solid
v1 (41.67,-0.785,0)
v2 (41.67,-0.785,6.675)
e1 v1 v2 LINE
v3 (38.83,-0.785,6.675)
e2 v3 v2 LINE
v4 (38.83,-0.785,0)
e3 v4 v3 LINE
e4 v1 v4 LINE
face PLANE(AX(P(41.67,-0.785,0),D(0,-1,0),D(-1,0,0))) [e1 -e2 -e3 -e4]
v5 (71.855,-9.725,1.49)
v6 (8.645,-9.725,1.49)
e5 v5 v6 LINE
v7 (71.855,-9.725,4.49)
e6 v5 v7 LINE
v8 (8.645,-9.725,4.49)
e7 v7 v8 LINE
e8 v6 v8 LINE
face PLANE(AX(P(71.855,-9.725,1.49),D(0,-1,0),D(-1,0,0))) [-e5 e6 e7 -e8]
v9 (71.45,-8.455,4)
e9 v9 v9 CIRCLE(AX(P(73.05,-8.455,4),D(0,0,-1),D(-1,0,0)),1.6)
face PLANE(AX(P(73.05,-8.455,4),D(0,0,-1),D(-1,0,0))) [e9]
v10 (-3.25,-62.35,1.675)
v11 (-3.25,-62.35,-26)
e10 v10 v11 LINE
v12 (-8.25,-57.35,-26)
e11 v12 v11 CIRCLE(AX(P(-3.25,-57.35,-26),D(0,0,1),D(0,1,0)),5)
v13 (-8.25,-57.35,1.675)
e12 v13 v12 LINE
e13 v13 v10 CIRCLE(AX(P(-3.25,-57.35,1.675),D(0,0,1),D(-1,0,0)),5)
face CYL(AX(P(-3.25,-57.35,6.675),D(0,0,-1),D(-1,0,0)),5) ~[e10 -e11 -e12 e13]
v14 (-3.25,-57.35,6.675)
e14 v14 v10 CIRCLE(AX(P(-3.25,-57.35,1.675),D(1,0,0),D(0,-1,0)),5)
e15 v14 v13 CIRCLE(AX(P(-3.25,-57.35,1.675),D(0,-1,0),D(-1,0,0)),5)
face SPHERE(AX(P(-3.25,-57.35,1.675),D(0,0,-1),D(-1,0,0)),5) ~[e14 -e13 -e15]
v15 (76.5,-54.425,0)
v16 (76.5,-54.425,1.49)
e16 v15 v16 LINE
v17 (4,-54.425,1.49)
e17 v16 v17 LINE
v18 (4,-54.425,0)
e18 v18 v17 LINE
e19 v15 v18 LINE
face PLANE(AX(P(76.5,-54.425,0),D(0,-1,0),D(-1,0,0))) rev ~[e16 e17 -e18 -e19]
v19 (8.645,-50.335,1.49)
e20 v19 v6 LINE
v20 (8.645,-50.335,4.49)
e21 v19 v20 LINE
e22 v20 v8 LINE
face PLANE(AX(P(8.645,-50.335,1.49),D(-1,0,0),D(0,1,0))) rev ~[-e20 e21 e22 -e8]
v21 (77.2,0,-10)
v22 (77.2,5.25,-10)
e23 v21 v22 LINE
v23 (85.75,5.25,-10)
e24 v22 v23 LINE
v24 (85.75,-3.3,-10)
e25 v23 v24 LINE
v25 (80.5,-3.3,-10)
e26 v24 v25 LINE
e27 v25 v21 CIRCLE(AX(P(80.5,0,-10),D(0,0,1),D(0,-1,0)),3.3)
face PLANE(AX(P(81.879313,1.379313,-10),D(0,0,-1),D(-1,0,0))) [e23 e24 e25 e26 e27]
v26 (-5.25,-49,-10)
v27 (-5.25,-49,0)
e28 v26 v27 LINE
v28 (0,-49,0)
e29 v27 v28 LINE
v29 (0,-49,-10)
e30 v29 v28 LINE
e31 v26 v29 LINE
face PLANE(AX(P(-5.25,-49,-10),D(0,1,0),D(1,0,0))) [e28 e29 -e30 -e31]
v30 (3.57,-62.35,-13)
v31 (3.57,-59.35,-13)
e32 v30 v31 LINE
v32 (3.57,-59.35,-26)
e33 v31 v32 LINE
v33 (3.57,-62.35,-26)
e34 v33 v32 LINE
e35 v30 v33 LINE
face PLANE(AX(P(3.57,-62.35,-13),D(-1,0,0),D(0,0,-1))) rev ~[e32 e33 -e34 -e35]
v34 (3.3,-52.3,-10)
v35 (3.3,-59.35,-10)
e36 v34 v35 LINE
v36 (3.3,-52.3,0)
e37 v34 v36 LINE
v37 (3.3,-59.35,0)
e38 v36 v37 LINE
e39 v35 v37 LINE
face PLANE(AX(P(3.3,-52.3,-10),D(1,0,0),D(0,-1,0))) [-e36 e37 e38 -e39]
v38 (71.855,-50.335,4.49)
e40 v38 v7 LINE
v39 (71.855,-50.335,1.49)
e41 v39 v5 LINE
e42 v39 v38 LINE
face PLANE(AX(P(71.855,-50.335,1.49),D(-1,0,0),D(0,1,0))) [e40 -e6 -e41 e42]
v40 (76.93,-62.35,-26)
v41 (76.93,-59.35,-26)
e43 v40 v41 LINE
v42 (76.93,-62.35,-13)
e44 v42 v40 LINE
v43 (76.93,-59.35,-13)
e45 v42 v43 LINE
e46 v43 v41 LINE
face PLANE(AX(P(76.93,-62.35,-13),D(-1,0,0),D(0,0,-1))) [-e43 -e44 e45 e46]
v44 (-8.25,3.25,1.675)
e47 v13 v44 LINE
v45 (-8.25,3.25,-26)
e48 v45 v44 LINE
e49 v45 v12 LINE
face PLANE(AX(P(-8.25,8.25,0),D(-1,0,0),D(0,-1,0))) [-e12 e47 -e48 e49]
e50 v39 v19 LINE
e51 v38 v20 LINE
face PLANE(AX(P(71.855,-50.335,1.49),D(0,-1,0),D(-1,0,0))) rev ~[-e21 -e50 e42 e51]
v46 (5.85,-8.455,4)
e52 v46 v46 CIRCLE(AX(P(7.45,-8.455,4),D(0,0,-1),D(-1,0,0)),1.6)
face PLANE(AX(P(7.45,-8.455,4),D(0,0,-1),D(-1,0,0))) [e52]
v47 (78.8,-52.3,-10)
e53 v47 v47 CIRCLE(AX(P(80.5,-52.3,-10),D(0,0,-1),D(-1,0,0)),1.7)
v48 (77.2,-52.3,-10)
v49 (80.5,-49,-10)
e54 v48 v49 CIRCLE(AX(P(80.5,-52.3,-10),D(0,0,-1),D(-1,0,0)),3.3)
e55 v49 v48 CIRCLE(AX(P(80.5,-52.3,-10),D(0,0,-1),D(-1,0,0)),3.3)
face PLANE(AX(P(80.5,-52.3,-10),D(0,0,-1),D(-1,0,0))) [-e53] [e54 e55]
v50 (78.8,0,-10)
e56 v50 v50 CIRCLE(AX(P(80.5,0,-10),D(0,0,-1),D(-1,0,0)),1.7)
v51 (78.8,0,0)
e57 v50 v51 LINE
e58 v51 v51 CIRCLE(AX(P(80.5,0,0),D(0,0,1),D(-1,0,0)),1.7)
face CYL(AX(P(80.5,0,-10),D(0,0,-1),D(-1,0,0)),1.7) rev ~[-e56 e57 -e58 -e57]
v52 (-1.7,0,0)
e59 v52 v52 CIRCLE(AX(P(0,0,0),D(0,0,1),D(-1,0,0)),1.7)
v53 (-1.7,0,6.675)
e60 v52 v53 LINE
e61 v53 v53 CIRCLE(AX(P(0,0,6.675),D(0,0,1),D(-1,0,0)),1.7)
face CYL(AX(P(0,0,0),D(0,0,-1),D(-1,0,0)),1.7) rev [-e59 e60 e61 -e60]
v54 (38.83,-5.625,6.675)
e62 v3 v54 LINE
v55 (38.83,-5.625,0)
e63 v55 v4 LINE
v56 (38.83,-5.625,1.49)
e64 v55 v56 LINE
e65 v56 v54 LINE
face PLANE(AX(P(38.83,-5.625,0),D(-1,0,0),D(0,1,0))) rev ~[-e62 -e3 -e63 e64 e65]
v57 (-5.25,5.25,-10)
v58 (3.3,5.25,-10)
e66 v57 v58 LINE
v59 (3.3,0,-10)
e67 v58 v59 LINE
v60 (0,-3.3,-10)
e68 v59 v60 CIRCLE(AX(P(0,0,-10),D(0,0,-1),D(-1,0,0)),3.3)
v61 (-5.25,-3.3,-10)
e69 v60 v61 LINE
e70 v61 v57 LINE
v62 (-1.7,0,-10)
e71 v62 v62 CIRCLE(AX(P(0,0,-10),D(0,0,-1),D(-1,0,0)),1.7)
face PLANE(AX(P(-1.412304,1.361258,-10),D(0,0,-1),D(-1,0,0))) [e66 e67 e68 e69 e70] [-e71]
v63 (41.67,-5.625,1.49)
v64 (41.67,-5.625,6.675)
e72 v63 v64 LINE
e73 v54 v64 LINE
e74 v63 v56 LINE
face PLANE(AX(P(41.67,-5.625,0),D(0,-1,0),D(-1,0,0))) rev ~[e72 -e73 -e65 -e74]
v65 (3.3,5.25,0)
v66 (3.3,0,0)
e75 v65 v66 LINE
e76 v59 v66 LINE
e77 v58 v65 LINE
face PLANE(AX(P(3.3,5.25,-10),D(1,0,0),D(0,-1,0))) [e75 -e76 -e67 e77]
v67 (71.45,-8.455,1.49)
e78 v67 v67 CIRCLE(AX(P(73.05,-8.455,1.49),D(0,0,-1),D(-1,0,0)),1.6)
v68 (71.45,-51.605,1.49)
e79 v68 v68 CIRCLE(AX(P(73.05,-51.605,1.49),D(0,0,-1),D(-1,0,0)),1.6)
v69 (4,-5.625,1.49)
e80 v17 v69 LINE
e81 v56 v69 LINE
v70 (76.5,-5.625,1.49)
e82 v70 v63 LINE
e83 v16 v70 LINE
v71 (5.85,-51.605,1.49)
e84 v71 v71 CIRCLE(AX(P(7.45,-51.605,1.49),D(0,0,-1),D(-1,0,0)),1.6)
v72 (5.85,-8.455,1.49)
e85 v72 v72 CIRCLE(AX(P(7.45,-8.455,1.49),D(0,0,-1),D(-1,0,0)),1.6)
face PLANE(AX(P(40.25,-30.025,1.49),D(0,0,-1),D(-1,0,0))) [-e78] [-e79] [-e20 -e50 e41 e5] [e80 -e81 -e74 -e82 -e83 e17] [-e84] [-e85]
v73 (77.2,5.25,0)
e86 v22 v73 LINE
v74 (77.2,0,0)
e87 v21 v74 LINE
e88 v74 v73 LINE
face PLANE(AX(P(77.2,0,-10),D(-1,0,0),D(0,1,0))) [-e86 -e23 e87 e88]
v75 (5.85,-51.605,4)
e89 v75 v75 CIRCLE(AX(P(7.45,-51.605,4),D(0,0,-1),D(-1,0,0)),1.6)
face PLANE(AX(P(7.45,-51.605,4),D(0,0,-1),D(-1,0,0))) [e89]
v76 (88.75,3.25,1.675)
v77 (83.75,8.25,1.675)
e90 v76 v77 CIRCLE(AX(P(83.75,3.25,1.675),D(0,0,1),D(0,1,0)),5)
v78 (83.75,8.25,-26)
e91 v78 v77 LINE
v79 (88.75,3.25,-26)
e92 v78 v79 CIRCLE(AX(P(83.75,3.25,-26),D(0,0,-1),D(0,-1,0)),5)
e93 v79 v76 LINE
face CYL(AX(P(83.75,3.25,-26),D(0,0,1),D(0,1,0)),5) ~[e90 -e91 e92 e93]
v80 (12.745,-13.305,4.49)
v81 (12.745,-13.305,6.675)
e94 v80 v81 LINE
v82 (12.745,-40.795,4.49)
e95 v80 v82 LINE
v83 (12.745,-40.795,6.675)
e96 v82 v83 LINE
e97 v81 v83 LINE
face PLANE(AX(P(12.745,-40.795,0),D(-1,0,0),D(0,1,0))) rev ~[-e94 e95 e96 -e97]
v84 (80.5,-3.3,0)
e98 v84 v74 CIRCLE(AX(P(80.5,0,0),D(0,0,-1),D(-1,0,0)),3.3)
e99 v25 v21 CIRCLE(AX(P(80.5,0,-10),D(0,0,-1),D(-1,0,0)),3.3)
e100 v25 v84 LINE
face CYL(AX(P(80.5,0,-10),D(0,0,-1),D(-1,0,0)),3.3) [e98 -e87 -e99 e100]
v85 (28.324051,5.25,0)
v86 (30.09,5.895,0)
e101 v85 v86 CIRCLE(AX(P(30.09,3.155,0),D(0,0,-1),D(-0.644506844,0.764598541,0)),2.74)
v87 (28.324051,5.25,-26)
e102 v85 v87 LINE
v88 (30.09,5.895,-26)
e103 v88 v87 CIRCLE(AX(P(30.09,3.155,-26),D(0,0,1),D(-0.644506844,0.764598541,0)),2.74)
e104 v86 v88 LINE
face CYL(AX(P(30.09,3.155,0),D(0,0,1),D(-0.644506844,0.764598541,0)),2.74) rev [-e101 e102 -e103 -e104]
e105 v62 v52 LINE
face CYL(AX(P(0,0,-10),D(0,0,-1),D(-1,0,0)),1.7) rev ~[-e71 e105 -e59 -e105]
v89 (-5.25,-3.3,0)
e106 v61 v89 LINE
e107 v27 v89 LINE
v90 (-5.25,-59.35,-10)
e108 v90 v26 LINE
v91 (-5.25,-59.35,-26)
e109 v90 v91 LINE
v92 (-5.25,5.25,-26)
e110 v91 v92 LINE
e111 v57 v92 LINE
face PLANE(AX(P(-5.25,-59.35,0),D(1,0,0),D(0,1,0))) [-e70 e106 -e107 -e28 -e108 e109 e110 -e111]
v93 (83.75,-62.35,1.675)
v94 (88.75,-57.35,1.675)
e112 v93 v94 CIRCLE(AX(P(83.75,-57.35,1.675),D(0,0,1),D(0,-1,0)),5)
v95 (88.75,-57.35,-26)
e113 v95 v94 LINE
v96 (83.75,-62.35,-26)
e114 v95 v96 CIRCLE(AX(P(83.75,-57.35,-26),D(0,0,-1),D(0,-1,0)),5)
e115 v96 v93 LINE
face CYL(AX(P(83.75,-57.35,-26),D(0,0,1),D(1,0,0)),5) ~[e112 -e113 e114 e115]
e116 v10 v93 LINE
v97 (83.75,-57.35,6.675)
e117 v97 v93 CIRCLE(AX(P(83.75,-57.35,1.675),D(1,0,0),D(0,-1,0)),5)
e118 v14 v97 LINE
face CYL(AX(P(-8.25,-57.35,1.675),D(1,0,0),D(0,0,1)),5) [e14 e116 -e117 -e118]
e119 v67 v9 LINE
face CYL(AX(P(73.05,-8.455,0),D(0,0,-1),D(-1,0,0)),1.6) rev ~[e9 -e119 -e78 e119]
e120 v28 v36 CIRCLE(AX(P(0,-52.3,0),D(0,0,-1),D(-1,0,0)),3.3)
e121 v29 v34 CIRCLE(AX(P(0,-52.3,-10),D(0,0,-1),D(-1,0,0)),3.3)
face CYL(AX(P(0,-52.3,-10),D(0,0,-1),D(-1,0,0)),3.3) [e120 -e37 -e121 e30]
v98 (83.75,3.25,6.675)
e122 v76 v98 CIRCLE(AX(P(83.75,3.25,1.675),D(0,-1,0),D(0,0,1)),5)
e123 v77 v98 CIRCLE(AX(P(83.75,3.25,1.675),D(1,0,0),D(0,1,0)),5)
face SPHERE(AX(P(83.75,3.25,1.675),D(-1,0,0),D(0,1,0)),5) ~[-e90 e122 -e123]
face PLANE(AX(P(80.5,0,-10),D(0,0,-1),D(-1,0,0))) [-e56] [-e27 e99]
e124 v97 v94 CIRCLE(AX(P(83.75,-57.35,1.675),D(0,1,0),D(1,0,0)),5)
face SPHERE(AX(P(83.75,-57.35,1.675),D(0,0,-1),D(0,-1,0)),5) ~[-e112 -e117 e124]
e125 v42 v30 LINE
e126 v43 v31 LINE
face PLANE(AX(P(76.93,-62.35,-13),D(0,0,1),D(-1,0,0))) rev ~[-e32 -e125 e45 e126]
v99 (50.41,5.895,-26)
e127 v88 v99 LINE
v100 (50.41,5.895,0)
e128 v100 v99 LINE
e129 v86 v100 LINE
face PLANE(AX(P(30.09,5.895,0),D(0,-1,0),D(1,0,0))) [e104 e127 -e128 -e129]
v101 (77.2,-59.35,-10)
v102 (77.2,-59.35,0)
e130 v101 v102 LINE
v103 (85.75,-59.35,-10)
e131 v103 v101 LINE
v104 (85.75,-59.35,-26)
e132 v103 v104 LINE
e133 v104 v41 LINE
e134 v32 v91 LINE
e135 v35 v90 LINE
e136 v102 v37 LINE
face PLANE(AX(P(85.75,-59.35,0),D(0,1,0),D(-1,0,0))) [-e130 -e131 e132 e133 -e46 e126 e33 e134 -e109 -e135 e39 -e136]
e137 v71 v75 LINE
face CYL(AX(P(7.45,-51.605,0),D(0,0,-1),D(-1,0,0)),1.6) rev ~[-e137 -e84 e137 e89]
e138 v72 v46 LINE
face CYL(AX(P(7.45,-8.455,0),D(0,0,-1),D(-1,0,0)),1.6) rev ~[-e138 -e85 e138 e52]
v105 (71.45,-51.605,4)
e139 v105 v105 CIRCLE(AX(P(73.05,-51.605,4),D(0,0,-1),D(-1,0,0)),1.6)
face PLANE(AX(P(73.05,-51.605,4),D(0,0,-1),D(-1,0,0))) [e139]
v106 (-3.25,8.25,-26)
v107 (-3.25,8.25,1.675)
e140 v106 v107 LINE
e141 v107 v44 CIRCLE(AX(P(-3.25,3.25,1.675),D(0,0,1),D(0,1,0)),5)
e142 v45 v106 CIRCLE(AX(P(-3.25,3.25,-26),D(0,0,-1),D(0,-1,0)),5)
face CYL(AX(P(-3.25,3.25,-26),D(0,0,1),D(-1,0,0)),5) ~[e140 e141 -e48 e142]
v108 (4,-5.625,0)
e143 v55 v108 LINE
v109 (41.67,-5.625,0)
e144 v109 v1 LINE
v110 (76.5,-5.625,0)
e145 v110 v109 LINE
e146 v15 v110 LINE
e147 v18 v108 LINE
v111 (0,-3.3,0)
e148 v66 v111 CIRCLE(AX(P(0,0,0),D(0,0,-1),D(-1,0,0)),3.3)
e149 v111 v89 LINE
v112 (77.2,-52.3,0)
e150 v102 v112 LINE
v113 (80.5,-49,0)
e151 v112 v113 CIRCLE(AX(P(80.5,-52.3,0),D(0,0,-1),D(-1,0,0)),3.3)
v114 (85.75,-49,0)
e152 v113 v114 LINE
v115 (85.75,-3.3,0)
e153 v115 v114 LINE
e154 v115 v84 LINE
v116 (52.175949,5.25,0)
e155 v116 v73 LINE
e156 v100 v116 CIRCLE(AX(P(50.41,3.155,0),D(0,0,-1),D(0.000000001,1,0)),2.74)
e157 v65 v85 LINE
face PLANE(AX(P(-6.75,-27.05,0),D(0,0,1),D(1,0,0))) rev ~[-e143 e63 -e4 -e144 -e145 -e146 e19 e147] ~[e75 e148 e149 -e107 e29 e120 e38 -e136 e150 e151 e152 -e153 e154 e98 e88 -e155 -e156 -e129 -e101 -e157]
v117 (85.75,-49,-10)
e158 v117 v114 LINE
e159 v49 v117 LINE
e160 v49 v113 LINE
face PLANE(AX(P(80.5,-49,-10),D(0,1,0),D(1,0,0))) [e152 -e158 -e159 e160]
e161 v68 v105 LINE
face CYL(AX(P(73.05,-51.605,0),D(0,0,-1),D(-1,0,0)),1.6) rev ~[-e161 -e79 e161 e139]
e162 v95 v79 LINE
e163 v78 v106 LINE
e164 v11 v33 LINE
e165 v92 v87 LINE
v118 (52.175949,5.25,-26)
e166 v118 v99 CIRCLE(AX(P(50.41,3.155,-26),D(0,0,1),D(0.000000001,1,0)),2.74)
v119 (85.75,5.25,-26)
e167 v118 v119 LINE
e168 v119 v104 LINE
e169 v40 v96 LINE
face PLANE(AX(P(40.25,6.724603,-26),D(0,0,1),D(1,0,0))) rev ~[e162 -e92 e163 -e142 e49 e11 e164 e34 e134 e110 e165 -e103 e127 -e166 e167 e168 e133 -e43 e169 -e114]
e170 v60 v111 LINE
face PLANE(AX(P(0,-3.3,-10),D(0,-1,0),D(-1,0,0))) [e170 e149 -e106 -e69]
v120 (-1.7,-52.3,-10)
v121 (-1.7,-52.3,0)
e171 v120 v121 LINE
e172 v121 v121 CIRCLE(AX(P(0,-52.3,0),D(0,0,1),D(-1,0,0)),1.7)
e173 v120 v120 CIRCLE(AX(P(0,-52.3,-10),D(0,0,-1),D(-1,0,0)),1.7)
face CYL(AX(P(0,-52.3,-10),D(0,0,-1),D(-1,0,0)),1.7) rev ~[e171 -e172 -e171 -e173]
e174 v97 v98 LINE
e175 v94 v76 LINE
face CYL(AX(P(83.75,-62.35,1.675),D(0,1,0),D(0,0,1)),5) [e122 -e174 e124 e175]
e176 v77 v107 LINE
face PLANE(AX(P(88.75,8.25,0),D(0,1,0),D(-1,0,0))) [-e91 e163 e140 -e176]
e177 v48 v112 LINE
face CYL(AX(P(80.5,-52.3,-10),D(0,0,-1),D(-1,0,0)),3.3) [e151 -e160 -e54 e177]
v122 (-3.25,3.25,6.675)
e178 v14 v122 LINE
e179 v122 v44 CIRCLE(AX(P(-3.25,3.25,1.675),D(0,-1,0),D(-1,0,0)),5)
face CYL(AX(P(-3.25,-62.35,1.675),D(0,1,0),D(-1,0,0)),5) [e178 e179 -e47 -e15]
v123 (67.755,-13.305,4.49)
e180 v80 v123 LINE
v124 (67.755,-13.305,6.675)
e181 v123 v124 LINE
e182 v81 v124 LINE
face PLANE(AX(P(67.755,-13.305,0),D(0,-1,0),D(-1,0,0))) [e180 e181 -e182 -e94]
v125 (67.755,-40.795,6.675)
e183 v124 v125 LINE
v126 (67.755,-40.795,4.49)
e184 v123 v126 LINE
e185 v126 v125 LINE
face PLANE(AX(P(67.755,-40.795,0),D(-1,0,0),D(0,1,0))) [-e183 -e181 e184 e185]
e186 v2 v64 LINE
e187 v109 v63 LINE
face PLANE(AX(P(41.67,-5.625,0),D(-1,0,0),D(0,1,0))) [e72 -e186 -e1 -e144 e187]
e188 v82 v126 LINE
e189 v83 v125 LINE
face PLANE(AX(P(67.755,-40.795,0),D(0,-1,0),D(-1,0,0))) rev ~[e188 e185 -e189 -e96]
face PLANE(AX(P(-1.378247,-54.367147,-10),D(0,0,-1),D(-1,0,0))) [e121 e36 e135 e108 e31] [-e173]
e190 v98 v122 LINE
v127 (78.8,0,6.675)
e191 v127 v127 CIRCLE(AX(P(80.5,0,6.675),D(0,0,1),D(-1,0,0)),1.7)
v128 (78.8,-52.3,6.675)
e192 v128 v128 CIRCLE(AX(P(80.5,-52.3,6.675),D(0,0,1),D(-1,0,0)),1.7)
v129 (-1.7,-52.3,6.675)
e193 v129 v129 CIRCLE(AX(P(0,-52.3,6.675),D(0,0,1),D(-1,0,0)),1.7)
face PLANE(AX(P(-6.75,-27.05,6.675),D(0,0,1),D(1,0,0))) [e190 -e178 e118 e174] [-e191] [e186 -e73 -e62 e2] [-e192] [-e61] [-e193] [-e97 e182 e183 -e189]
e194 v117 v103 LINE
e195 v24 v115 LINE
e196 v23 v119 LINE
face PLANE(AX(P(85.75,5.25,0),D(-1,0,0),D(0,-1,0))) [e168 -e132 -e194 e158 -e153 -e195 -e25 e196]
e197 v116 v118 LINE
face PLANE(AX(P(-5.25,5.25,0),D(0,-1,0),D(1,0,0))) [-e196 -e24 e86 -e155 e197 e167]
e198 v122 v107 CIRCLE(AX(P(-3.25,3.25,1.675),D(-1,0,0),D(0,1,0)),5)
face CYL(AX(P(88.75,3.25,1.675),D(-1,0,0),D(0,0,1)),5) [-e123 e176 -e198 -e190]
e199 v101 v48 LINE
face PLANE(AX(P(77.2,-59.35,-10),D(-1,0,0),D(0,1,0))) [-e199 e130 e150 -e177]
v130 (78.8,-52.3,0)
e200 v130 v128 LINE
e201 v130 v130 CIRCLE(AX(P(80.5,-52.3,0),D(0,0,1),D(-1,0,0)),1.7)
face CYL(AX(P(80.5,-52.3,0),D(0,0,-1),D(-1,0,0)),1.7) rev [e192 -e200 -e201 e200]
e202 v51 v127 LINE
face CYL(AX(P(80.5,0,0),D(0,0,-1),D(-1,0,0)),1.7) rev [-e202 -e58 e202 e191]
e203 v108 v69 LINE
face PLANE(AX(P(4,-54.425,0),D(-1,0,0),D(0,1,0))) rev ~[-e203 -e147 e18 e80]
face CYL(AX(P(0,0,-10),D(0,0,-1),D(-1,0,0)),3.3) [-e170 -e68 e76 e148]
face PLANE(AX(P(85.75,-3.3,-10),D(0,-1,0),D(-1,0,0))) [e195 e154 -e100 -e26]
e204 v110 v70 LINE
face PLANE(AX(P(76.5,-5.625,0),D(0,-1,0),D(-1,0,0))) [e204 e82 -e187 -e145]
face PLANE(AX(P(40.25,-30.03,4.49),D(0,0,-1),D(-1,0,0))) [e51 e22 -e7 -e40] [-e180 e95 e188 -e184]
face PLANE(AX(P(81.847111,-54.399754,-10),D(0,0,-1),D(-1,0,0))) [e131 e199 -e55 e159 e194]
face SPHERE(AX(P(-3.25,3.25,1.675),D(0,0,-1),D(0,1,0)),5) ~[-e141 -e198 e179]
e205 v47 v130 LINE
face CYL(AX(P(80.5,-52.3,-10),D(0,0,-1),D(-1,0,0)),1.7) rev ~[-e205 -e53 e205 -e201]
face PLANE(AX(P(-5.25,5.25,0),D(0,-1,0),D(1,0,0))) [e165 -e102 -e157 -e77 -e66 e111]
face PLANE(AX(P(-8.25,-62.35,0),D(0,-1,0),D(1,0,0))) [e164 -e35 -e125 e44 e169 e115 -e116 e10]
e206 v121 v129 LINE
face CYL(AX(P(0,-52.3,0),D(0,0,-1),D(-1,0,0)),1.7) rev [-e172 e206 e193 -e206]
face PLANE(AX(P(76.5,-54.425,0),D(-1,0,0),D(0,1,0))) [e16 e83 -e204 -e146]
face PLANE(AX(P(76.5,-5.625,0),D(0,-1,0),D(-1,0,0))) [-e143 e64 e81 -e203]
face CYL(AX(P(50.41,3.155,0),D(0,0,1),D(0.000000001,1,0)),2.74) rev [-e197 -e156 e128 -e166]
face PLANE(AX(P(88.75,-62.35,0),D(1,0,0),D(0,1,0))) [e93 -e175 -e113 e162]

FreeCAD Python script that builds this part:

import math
import FreeCAD as App
import Part
import Sketcher
from FreeCAD import Vector


def edges_at(feature, points):
    """Names of the edges that pass closest to the given points."""
    edges = feature.Shape.Edges
    near = lambda p: min(range(len(edges)), key=lambda i: edges[i].distToShape(Part.Vertex(*p))[0])
    return sorted({f"Edge{near(p) + 1}" for p in points})

doc = App.newDocument("Part")
body = doc.addObject("PartDesign::Body", "Body")

sketch1 = body.newObject("Sketcher::SketchObject", "Sketch")
sketch1.AttachmentSupport = (doc.getObject("XY_Plane"), [""])
sketch1.MapMode = "FlatFace"
sketch1.addGeometry([
    Part.LineSegment(Vector(88.8, 8.2, 0), Vector(-8.2, 8.2, 0)),
    Part.LineSegment(Vector(-8.2, 8.2, 0), Vector(-8.2, -62.4, 0)),
    Part.LineSegment(Vector(-8.2, -62.4, 0), Vector(88.8, -62.4, 0)),
    Part.LineSegment(Vector(88.8, -62.4, 0), Vector(88.8, 8.2, 0)),
    Part.Circle(Vector(0, -52.3, 0), Vector(0, 0, 1), 1.7),
    Part.Circle(Vector(0, 0, 0), Vector(0, 0, 1), 1.7),
    Part.Circle(Vector(80.5, -52.3, 0), Vector(0, 0, 1), 1.7),
    Part.Circle(Vector(80.5, 0, 0), Vector(0, 0, 1), 1.7),
], False)
sketch1.addConstraint([
    Sketcher.Constraint("Coincident", 0, 2, 1, 1),
    Sketcher.Constraint("Coincident", 1, 2, 2, 1),
    Sketcher.Constraint("Coincident", 2, 2, 3, 1),
    Sketcher.Constraint("Coincident", 3, 2, 0, 1),
    Sketcher.Constraint("Horizontal", 0),
    Sketcher.Constraint("Vertical", 1),
    Sketcher.Constraint("Horizontal", 2),
    Sketcher.Constraint("Vertical", 3),
    Sketcher.Constraint("Coincident", 5, 3, -1, 1),
    Sketcher.Constraint("Equal", 4, 5),
    Sketcher.Constraint("Equal", 5, 6),
    Sketcher.Constraint("Equal", 6, 7),
    Sketcher.Constraint("PointOnObject", 4, 3, -2),
    Sketcher.Constraint("PointOnObject", 7, 3, -1),
    Sketcher.Constraint("Horizontal", 4, 3, 6, 3),
    Sketcher.Constraint("Vertical", 6, 3, 7, 3),
    Sketcher.Constraint("Diameter", 4, 3.4),
    Sketcher.Constraint("DistanceX", 0, 2, 0, 1, 97.0),
    Sketcher.Constraint("DistanceY", 1, 2, 1, 1, 70.6),
    Sketcher.Constraint("DistanceY", 4, 3, -1, 1, 52.3),
    Sketcher.Constraint("DistanceX", -1, 1, 6, 3, 80.5),
    Sketcher.Constraint("DistanceX", 0, 2, -1, 1, 8.25),
    Sketcher.Constraint("DistanceY", -1, 1, 0, 2, 8.25),
])
pad1 = body.newObject("PartDesign::Pad", "Pad")
pad1.Profile = sketch1
pad1.Length = 6.675

sketch2 = body.newObject("Sketcher::SketchObject", "Sketch001")
sketch2.AttachmentSupport = (doc.getObject("XY_Plane"), [""])
sketch2.MapMode = "FlatFace"
sketch2.addGeometry([
    Part.LineSegment(Vector(-8, -62, 0), Vector(89, -62, 0)),
    Part.LineSegment(Vector(89, -62, 0), Vector(89, 8, 0)),
    Part.LineSegment(Vector(89, 8, 0), Vector(-8, 8, 0)),
    Part.LineSegment(Vector(-8, 8, 0), Vector(-8, -62, 0)),
    Part.LineSegment(Vector(86, 5, 0), Vector(86, -59, 0)),
    Part.LineSegment(Vector(86, -59, 0), Vector(-5, -59, 0)),
    Part.LineSegment(Vector(-5, -59, 0), Vector(-5, 5, 0)),
    Part.LineSegment(Vector(-5, 5, 0), Vector(86, 5, 0)),
], False)
sketch2.addConstraint([
    Sketcher.Constraint("Coincident", 0, 2, 1, 1),
    Sketcher.Constraint("Coincident", 1, 2, 2, 1),
    Sketcher.Constraint("Coincident", 2, 2, 3, 1),
    Sketcher.Constraint("Coincident", 3, 2, 0, 1),
    Sketcher.Constraint("Coincident", 4, 2, 5, 1),
    Sketcher.Constraint("Coincident", 5, 2, 6, 1),
    Sketcher.Constraint("Coincident", 6, 2, 7, 1),
    Sketcher.Constraint("Coincident", 7, 2, 4, 1),
    Sketcher.Constraint("Horizontal", 0),
    Sketcher.Constraint("Vertical", 1),
    Sketcher.Constraint("Horizontal", 2),
    Sketcher.Constraint("Vertical", 3),
    Sketcher.Constraint("Vertical", 4),
    Sketcher.Constraint("Horizontal", 5),
    Sketcher.Constraint("Vertical", 6),
    Sketcher.Constraint("Horizontal", 7),
    Sketcher.Constraint("DistanceX", 0, 1, 0, 2, 97.0),
    Sketcher.Constraint("DistanceX", 5, 2, 5, 1, 91.0),
    Sketcher.Constraint("DistanceY", 1, 1, 1, 2, 70.6),
    Sketcher.Constraint("DistanceY", 4, 2, 4, 1, 64.6),
    Sketcher.Constraint("DistanceX", 4, 2, 0, 2, 3.0),
    Sketcher.Constraint("DistanceY", 0, 2, 4, 2, 3.0),
    Sketcher.Constraint("DistanceX", -1, 1, 0, 2, 88.75),
    Sketcher.Constraint("DistanceY", 0, 2, -1, 1, 62.35),
])
pad2 = body.newObject("PartDesign::Pad", "Pad001")
pad2.Profile = sketch2
pad2.Length = 26
pad2.Reversed = True
doc.recompute()

fillet = body.newObject("PartDesign::Fillet", "Fillet")
fillet.Base = (pad2, edges_at(pad2, [
    (88.75, -62.35, -9.662),
    (-8.25, -62.35, -9.662),
    (-8.25, 8.25, -9.662),
    (40.25, 8.25, 6.675),
    (88.75, 8.25, -9.662),
    (-8.25, -27.05, 6.675),
    (40.25, -62.35, 6.675),
    (88.75, -27.05, 6.675),
]))
fillet.Radius = 5

sketch3 = body.newObject("Sketcher::SketchObject", "Sketch002")
sketch3.AttachmentSupport = (doc.getObject("XZ_Plane"), [""])
sketch3.MapMode = "FlatFace"
sketch3.AttachmentOffset = App.Placement(Vector(0, 0, 62.35), App.Rotation())
sketch3.addGeometry([
    Part.LineSegment(Vector(77, -26, 0), Vector(77, -13, 0)),
    Part.LineSegment(Vector(77, -13, 0), Vector(4, -13, 0)),
    Part.LineSegment(Vector(4, -13, 0), Vector(4, -26, 0)),
    Part.LineSegment(Vector(4, -26, 0), Vector(77, -26, 0)),
], False)
sketch3.addConstraint([
    Sketcher.Constraint("Coincident", 0, 2, 1, 1),
    Sketcher.Constraint("Coincident", 1, 2, 2, 1),
    Sketcher.Constraint("Coincident", 2, 2, 3, 1),
    Sketcher.Constraint("Coincident", 3, 2, 0, 1),
    Sketcher.Constraint("Vertical", 0),
    Sketcher.Constraint("Horizontal", 1),
    Sketcher.Constraint("Vertical", 2),
    Sketcher.Constraint("Horizontal", 3),
    Sketcher.Constraint("DistanceY", 0, 1, 0, 2, 13.0),
    Sketcher.Constraint("DistanceY", 0, 2, -1, 1, 13.0),
    Sketcher.Constraint("DistanceX", 1, 2, 1, 1, 73.36),
    Sketcher.Constraint("DistanceX", -1, 1, 0, 2, 76.93),
])
pocket1 = body.newObject("PartDesign::Pocket", "Pocket")
pocket1.Profile = sketch3
pocket1.Length = 3

sketch4 = body.newObject("Sketcher::SketchObject", "Sketch003")
sketch4.AttachmentSupport = (doc.getObject("XY_Plane"), [""])
sketch4.MapMode = "FlatFace"
sketch4.addGeometry([
    Part.LineSegment(Vector(68, -13, 0), Vector(68, -41, 0)),
    Part.LineSegment(Vector(68, -41, 0), Vector(13, -41, 0)),
    Part.LineSegment(Vector(13, -41, 0), Vector(13, -13, 0)),
    Part.LineSegment(Vector(13, -13, 0), Vector(68, -13, 0)),
], False)
sketch4.addConstraint([
    Sketcher.Constraint("Coincident", 0, 2, 1, 1),
    Sketcher.Constraint("Coincident", 1, 2, 2, 1),
    Sketcher.Constraint("Coincident", 2, 2, 3, 1),
    Sketcher.Constraint("Coincident", 3, 2, 0, 1),
    Sketcher.Constraint("Vertical", 0),
    Sketcher.Constraint("Horizontal", 1),
    Sketcher.Constraint("Vertical", 2),
    Sketcher.Constraint("Horizontal", 3),
    Sketcher.Constraint("DistanceX", 1, 2, 1, 1, 55.01),
    Sketcher.Constraint("DistanceY", 0, 2, 0, 1, 27.49),
    Sketcher.Constraint("DistanceX", -1, 1, 0, 2, 67.755),
    Sketcher.Constraint("DistanceY", 0, 2, -1, 1, 40.795),
])
pocket2 = body.newObject("PartDesign::Pocket", "Pocket001")
pocket2.Profile = sketch4
pocket2.Type = "ThroughAll"
pocket2.Reversed = True

sketch5 = body.newObject("Sketcher::SketchObject", "Sketch004")
sketch5.AttachmentSupport = (doc.getObject("XY_Plane"), [""])
sketch5.MapMode = "FlatFace"
sketch5.addGeometry([
    Part.LineSegment(Vector(76, -6, 0), Vector(76, -54, 0)),
    Part.LineSegment(Vector(76, -54, 0), Vector(4, -54, 0)),
    Part.LineSegment(Vector(4, -54, 0), Vector(4, -6, 0)),
    Part.LineSegment(Vector(4, -6, 0), Vector(76, -6, 0)),
], False)
sketch5.addConstraint([
    Sketcher.Constraint("Coincident", 0, 2, 1, 1),
    Sketcher.Constraint("Coincident", 1, 2, 2, 1),
    Sketcher.Constraint("Coincident", 2, 2, 3, 1),
    Sketcher.Constraint("Coincident", 3, 2, 0, 1),
    Sketcher.Constraint("Vertical", 0),
    Sketcher.Constraint("Horizontal", 1),
    Sketcher.Constraint("Vertical", 2),
    Sketcher.Constraint("Horizontal", 3),
    Sketcher.Constraint("DistanceX", 1, 2, 1, 1, 72.5),
    Sketcher.Constraint("DistanceY", 0, 2, 0, 1, 48.8),
    Sketcher.Constraint("DistanceX", -1, 1, 1, 2, 4.0),
    Sketcher.Constraint("DistanceY", 0, 2, -1, 1, 54.425),
])
pocket3 = body.newObject("PartDesign::Pocket", "Pocket002")
pocket3.Profile = sketch5
pocket3.Length = 1.49
pocket3.Reversed = True

sketch6 = body.newObject("Sketcher::SketchObject", "Sketch005")
sketch6.AttachmentSupport = (doc.getObject("XY_Plane"), [""])
sketch6.MapMode = "FlatFace"
sketch6.addGeometry([
    Part.Circle(Vector(73, -8.5, 0), Vector(0, 0, 1), 1.6),
    Part.Circle(Vector(73, -51.6, 0), Vector(0, 0, 1), 1.6),
    Part.Circle(Vector(7.5, -51.6, 0), Vector(0, 0, 1), 1.6),
    Part.Circle(Vector(7.5, -8.5, 0), Vector(0, 0, 1), 1.6),
], False)
sketch6.addConstraint([
    Sketcher.Constraint("Equal", 0, 1),
    Sketcher.Constraint("Equal", 1, 2),
    Sketcher.Constraint("Equal", 2, 3),
    Sketcher.Constraint("Horizontal", 1, 3, 2, 3),
    Sketcher.Constraint("Horizontal", 0, 3, 3, 3),
    Sketcher.Constraint("Vertical", 0, 3, 1, 3),
    Sketcher.Constraint("Vertical", 2, 3, 3, 3),
    Sketcher.Constraint("Diameter", 0, 3.2),
    Sketcher.Constraint("DistanceX", 2, 3, 1, 3, 65.6),
    Sketcher.Constraint("DistanceX", -1, 1, 0, 3, 73.05),
    Sketcher.Constraint("DistanceY", 1, 3, 0, 3, 43.15),
    Sketcher.Constraint("DistanceY", 0, 3, -1, 1, 8.455),
])
pocket4 = body.newObject("PartDesign::Pocket", "Pocket003")
pocket4.Profile = sketch6
pocket4.Length = 4
pocket4.Reversed = True

sketch7 = body.newObject("Sketcher::SketchObject", "Sketch006")
sketch7.AttachmentSupport = (doc.getObject("XY_Plane"), [""])
sketch7.MapMode = "FlatFace"
sketch7.AttachmentOffset = App.Placement(Vector(0, 0, 1.49), App.Rotation())
sketch7.addGeometry([
    Part.LineSegment(Vector(72, -10, 0), Vector(72, -50, 0)),
    Part.LineSegment(Vector(72, -50, 0), Vector(9, -50, 0)),
    Part.LineSegment(Vector(9, -50, 0), Vector(9, -10, 0)),
    Part.LineSegment(Vector(9, -10, 0), Vector(72, -10, 0)),
], False)
sketch7.addConstraint([
    Sketcher.Constraint("Coincident", 0, 2, 1, 1),
    Sketcher.Constraint("Coincident", 1, 2, 2, 1),
    Sketcher.Constraint("Coincident", 2, 2, 3, 1),
    Sketcher.Constraint("Coincident", 3, 2, 0, 1),
    Sketcher.Constraint("Vertical", 0),
    Sketcher.Constraint("Horizontal", 1),
    Sketcher.Constraint("Vertical", 2),
    Sketcher.Constraint("Horizontal", 3),
    Sketcher.Constraint("DistanceX", 1, 2, 1, 1, 63.21),
    Sketcher.Constraint("DistanceY", 0, 2, 0, 1, 40.61),
    Sketcher.Constraint("DistanceX", -1, 1, 0, 2, 71.855),
    Sketcher.Constraint("DistanceY", 0, 2, -1, 1, 50.335),
])
pocket5 = body.newObject("PartDesign::Pocket", "Pocket004")
pocket5.Profile = sketch7
pocket5.Length = 3
pocket5.Reversed = True

sketch8 = body.newObject("Sketcher::SketchObject", "Sketch007")
sketch8.AttachmentSupport = (doc.getObject("XY_Plane"), [""])
sketch8.MapMode = "FlatFace"
sketch8.addGeometry([
    Part.LineSegment(Vector(41.7, -0.8, 0), Vector(41.7, -5.6, 0)),
    Part.LineSegment(Vector(41.7, -5.6, 0), Vector(38.8, -5.6, 0)),
    Part.LineSegment(Vector(38.8, -5.6, 0), Vector(38.8, -0.8, 0)),
    Part.LineSegment(Vector(38.8, -0.8, 0), Vector(41.7, -0.8, 0)),
], False)
sketch8.addConstraint([
    Sketcher.Constraint("Coincident", 0, 2, 1, 1),
    Sketcher.Constraint("Coincident", 1, 2, 2, 1),
    Sketcher.Constraint("Coincident", 2, 2, 3, 1),
    Sketcher.Constraint("Coincident", 3, 2, 0, 1),
    Sketcher.Constraint("Vertical", 0),
    Sketcher.Constraint("Horizontal", 1),
    Sketcher.Constraint("Vertical", 2),
    Sketcher.Constraint("Horizontal", 3),
    Sketcher.Constraint("DistanceX", 1, 2, 1, 1, 2.84),
    Sketcher.Constraint("DistanceY", 0, 2, 0, 1, 4.84),
    Sketcher.Constraint("DistanceX", -1, 1, 0, 2, 41.67),
    Sketcher.Constraint("DistanceY", 0, 2, -1, 1, 5.625),
])
pocket6 = body.newObject("PartDesign::Pocket", "Pocket005")
pocket6.Profile = sketch8
pocket6.Length = 112.535129
pocket6.Reversed = True

sketch9 = body.newObject("Sketcher::SketchObject", "Sketch008")
sketch9.AttachmentSupport = (doc.getObject("XY_Plane"), [""])
sketch9.MapMode = "FlatFace"
sketch9.addGeometry([
    Part.ArcOfCircle(Part.Circle(Vector(50.4, -9.5, 0), Vector(0, 0, 1), 2.7), math.radians(-90), math.radians(0)),
    Part.LineSegment(Vector(50.4, -12.3, 0), Vector(30.1, -12.3, 0)),
    Part.ArcOfCircle(Part.Circle(Vector(30.1, -9.5, 0), Vector(0, 0, 1), 2.7), math.radians(-180), math.radians(-90)),
    Part.LineSegment(Vector(27.4, -9.5, 0), Vector(27.4, 3.2, 0)),
    Part.ArcOfCircle(Part.Circle(Vector(30.1, 3.2, 0), Vector(0, 0, 1), 2.7), math.radians(130), math.radians(180)),
    Part.ArcOfCircle(Part.Circle(Vector(30.1, 3.2, 0), Vector(0, 0, 1), 2.7), math.radians(90), math.radians(130)),
    Part.LineSegment(Vector(30.1, 5.9, 0), Vector(50.4, 5.9, 0)),
    Part.ArcOfCircle(Part.Circle(Vector(50.4, 3.2, 0), Vector(0, 0, 1), 2.7), math.radians(50), math.radians(90)),
    Part.ArcOfCircle(Part.Circle(Vector(50.4, 3.2, 0), Vector(0, 0, 1), 2.7), math.radians(0), math.radians(50)),
    Part.LineSegment(Vector(53.1, 3.2, 0), Vector(53.1, -9.5, 0)),
], False)
sketch9.addConstraint([
    Sketcher.Constraint("Tangent", 0, 1, 1, 1),
    Sketcher.Constraint("Tangent", 1, 2, 2, 2),
    Sketcher.Constraint("Tangent", 2, 1, 3, 1),
    Sketcher.Constraint("Tangent", 3, 2, 4, 2),
    Sketcher.Constraint("Tangent", 4, 1, 5, 2),
    Sketcher.Constraint("Tangent", 5, 1, 6, 1),
    Sketcher.Constraint("Tangent", 6, 2, 7, 2),
    Sketcher.Constraint("Tangent", 7, 1, 8, 2),
    Sketcher.Constraint("Tangent", 8, 1, 9, 1),
    Sketcher.Constraint("Tangent", 9, 2, 0, 2),
    Sketcher.Constraint("Horizontal", 1),
    Sketcher.Constraint("Vertical", 3),
    Sketcher.Constraint("Horizontal", 6),
    Sketcher.Constraint("Vertical", 9),
    Sketcher.Constraint("Equal", 0, 2),
    Sketcher.Constraint("Equal", 2, 4),
    Sketcher.Constraint("Equal", 4, 5),
    Sketcher.Constraint("Equal", 5, 7),
    Sketcher.Constraint("Equal", 7, 8),
    Sketcher.Constraint("Horizontal", 4, 1, 7, 1),
    Sketcher.Constraint("Radius", 0, 2.74),
    Sketcher.Constraint("DistanceY", 3, 1, 3, 2, 12.7),
    Sketcher.Constraint("DistanceX", 1, 2, 1, 1, 20.32),
    Sketcher.Constraint("DistanceX", -1, 1, 0, 3, 50.41),
    Sketcher.Constraint("DistanceY", -1, 1, 4, 1, 5.25),
    Sketcher.Constraint("DistanceY", 0, 3, -1, 1, 9.545),
])
pocket7 = body.newObject("PartDesign::Pocket", "Pocket006")
pocket7.Profile = sketch9
pocket7.Type = "ThroughAll"

sketch10 = body.newObject("Sketcher::SketchObject", "Sketch009")
sketch10.AttachmentSupport = (doc.getObject("XY_Plane"), [""])
sketch10.MapMode = "FlatFace"
sketch10.AttachmentOffset = App.Placement(Vector(0, 0, -10), App.Rotation())
sketch10.addGeometry([
    Part.LineSegment(Vector(0, -3.3, 0), Vector(-5.2, -3.3, 0)),
    Part.LineSegment(Vector(-5.2, -3.3, 0), Vector(-5.2, 5.2, 0)),
    Part.LineSegment(Vector(-5.2, 5.2, 0), Vector(3.3, 5.2, 0)),
    Part.LineSegment(Vector(3.3, 5.2, 0), Vector(3.3, 0, 0)),
    Part.ArcOfCircle(Part.Circle(Vector(0, 0, 0), Vector(0, 0, 1), 3.3), math.radians(-90), math.radians(0)),
    Part.Circle(Vector(0, 0, 0), Vector(0, 0, 1), 1.7),
    Part.LineSegment(Vector(85.8, 5.2, 0), Vector(85.8, -3.3, 0)),
    Part.LineSegment(Vector(85.8, -3.3, 0), Vector(80.5, -3.3, 0)),
    Part.ArcOfCircle(Part.Circle(Vector(80.5, 0, 0), Vector(0, 0, 1), 3.3), math.radians(180), math.radians(270)),
    Part.LineSegment(Vector(77.2, 0, 0), Vector(77.2, 5.2, 0)),
    Part.LineSegment(Vector(77.2, 5.2, 0), Vector(85.8, 5.2, 0)),
    Part.Circle(Vector(80.5, 0, 0), Vector(0, 0, 1), 1.7),
    Part.ArcOfCircle(Part.Circle(Vector(80.5, -52.3, 0), Vector(0, 0, 1), 3.3), math.radians(90), math.radians(180)),
    Part.LineSegment(Vector(80.5, -49, 0), Vector(85.8, -49, 0)),
    Part.LineSegment(Vector(85.8, -49, 0), Vector(85.8, -59.4, 0)),
    Part.LineSegment(Vector(85.8, -59.4, 0), Vector(77.2, -59.4, 0)),
    Part.LineSegment(Vector(77.2, -59.4, 0), Vector(77.2, -52.3, 0)),
    Part.Circle(Vector(80.5, -52.3, 0), Vector(0, 0, 1), 1.7),
    Part.ArcOfCircle(Part.Circle(Vector(0, -52.3, 0), Vector(0, 0, 1), 3.3), math.radians(0), math.radians(90)),
    Part.LineSegment(Vector(3.3, -52.3, 0), Vector(3.3, -59.4, 0)),
    Part.LineSegment(Vector(3.3, -59.4, 0), Vector(-5.2, -59.4, 0)),
    Part.LineSegment(Vector(-5.2, -59.4, 0), Vector(-5.2, -49, 0)),
    Part.LineSegment(Vector(-5.2, -49, 0), Vector(0, -49, 0)),
    Part.Circle(Vector(0, -52.3, 0), Vector(0, 0, 1), 1.7),
], False)
sketch10.addConstraint([
    Sketcher.Constraint("Coincident", 0, 2, 1, 1),
    Sketcher.Constraint("Coincident", 1, 2, 2, 1),
    Sketcher.Constraint("Coincident", 2, 2, 3, 1),
    Sketcher.Constraint("Tangent", 3, 2, 4, 2),
    Sketcher.Constraint("Tangent", 4, 1, 0, 1),
    Sketcher.Constraint("Coincident", 6, 2, 7, 1),
    Sketcher.Constraint("Tangent", 7, 2, 8, 2),
    Sketcher.Constraint("Tangent", 8, 1, 9, 1),
    Sketcher.Constraint("Coincident", 9, 2, 10, 1),
    Sketcher.Constraint("Coincident", 10, 2, 6, 1),
    Sketcher.Constraint("Tangent", 12, 1, 13, 1),
    Sketcher.Constraint("Coincident", 13, 2, 14, 1),
    Sketcher.Constraint("Coincident", 14, 2, 15, 1),
    Sketcher.Constraint("Coincident", 15, 2, 16, 1),
    Sketcher.Constraint("Tangent", 16, 2, 12, 2),
    Sketcher.Constraint("Tangent", 18, 1, 19, 1),
    Sketcher.Constraint("Coincident", 19, 2, 20, 1),
    Sketcher.Constraint("Coincident", 20, 2, 21, 1),
    Sketcher.Constraint("Coincident", 21, 2, 22, 1),
    Sketcher.Constraint("Tangent", 22, 2, 18, 2),
    Sketcher.Constraint("Horizontal", 0),
    Sketcher.Constraint("Vertical", 1),
    Sketcher.Constraint("Horizontal", 2),
    Sketcher.Constraint("Vertical", 3),
    Sketcher.Constraint("Vertical", 6),
    Sketcher.Constraint("Horizontal", 7),
    Sketcher.Constraint("Vertical", 9),
    Sketcher.Constraint("Horizontal", 10),
    Sketcher.Constraint("Horizontal", 13),
    Sketcher.Constraint("Vertical", 14),
    Sketcher.Constraint("Horizontal", 15),
    Sketcher.Constraint("Vertical", 16),
    Sketcher.Constraint("Vertical", 19),
    Sketcher.Constraint("Horizontal", 20),
    Sketcher.Constraint("Vertical", 21),
    Sketcher.Constraint("Horizontal", 22),
    Sketcher.Constraint("Coincident", 4, 3, -1, 1),
    Sketcher.Constraint("Coincident", 5, 3, -1, 1),
    Sketcher.Constraint("Coincident", 11, 3, 8, 3),
    Sketcher.Constraint("Coincident", 17, 3, 12, 3),
    Sketcher.Constraint("Coincident", 23, 3, 18, 3),
    Sketcher.Constraint("Equal", 4, 8),
    Sketcher.Constraint("Equal", 5, 11),
    Sketcher.Constraint("Equal", 8, 12),
    Sketcher.Constraint("Equal", 11, 17),
    Sketcher.Constraint("Equal", 12, 18),
    Sketcher.Constraint("Equal", 17, 23),
    Sketcher.Constraint("PointOnObject", 8, 3, -1),
    Sketcher.Constraint("PointOnObject", 18, 3, -2),
    Sketcher.Constraint("Horizontal", 17, 3, 18, 3),
    Sketcher.Constraint("Horizontal", 2, 2, 9, 2),
    Sketcher.Constraint("Horizontal", 15, 2, 19, 2),
    Sketcher.Constraint("Vertical", 11, 3, 12, 3),
    Sketcher.Constraint("Vertical", 10, 2, 13, 2),
    Sketcher.Constraint("Vertical", 1, 2, 20, 2),
    Sketcher.Constraint("Equal", 0, 7),
    Sketcher.Constraint("Equal", 20, 1),
    Sketcher.Constraint("Diameter", 5, 3.4),
    Sketcher.Constraint("Radius", 4, 3.3),
    Sketcher.Constraint("DistanceY", 12, 1, -1, 1, 49.0),
    Sketcher.Constraint("DistanceX", 0, 2, 0, 1, 5.25),
    Sketcher.Constraint("DistanceY", 14, 2, 14, 1, 10.35),
    Sketcher.Constraint("DistanceX", -1, 1, 8, 3, 80.5),
])
pad3 = body.newObject("PartDesign::Pad", "Pad002")
pad3.Profile = sketch10
pad3.Length = 10

doc.recompute()
